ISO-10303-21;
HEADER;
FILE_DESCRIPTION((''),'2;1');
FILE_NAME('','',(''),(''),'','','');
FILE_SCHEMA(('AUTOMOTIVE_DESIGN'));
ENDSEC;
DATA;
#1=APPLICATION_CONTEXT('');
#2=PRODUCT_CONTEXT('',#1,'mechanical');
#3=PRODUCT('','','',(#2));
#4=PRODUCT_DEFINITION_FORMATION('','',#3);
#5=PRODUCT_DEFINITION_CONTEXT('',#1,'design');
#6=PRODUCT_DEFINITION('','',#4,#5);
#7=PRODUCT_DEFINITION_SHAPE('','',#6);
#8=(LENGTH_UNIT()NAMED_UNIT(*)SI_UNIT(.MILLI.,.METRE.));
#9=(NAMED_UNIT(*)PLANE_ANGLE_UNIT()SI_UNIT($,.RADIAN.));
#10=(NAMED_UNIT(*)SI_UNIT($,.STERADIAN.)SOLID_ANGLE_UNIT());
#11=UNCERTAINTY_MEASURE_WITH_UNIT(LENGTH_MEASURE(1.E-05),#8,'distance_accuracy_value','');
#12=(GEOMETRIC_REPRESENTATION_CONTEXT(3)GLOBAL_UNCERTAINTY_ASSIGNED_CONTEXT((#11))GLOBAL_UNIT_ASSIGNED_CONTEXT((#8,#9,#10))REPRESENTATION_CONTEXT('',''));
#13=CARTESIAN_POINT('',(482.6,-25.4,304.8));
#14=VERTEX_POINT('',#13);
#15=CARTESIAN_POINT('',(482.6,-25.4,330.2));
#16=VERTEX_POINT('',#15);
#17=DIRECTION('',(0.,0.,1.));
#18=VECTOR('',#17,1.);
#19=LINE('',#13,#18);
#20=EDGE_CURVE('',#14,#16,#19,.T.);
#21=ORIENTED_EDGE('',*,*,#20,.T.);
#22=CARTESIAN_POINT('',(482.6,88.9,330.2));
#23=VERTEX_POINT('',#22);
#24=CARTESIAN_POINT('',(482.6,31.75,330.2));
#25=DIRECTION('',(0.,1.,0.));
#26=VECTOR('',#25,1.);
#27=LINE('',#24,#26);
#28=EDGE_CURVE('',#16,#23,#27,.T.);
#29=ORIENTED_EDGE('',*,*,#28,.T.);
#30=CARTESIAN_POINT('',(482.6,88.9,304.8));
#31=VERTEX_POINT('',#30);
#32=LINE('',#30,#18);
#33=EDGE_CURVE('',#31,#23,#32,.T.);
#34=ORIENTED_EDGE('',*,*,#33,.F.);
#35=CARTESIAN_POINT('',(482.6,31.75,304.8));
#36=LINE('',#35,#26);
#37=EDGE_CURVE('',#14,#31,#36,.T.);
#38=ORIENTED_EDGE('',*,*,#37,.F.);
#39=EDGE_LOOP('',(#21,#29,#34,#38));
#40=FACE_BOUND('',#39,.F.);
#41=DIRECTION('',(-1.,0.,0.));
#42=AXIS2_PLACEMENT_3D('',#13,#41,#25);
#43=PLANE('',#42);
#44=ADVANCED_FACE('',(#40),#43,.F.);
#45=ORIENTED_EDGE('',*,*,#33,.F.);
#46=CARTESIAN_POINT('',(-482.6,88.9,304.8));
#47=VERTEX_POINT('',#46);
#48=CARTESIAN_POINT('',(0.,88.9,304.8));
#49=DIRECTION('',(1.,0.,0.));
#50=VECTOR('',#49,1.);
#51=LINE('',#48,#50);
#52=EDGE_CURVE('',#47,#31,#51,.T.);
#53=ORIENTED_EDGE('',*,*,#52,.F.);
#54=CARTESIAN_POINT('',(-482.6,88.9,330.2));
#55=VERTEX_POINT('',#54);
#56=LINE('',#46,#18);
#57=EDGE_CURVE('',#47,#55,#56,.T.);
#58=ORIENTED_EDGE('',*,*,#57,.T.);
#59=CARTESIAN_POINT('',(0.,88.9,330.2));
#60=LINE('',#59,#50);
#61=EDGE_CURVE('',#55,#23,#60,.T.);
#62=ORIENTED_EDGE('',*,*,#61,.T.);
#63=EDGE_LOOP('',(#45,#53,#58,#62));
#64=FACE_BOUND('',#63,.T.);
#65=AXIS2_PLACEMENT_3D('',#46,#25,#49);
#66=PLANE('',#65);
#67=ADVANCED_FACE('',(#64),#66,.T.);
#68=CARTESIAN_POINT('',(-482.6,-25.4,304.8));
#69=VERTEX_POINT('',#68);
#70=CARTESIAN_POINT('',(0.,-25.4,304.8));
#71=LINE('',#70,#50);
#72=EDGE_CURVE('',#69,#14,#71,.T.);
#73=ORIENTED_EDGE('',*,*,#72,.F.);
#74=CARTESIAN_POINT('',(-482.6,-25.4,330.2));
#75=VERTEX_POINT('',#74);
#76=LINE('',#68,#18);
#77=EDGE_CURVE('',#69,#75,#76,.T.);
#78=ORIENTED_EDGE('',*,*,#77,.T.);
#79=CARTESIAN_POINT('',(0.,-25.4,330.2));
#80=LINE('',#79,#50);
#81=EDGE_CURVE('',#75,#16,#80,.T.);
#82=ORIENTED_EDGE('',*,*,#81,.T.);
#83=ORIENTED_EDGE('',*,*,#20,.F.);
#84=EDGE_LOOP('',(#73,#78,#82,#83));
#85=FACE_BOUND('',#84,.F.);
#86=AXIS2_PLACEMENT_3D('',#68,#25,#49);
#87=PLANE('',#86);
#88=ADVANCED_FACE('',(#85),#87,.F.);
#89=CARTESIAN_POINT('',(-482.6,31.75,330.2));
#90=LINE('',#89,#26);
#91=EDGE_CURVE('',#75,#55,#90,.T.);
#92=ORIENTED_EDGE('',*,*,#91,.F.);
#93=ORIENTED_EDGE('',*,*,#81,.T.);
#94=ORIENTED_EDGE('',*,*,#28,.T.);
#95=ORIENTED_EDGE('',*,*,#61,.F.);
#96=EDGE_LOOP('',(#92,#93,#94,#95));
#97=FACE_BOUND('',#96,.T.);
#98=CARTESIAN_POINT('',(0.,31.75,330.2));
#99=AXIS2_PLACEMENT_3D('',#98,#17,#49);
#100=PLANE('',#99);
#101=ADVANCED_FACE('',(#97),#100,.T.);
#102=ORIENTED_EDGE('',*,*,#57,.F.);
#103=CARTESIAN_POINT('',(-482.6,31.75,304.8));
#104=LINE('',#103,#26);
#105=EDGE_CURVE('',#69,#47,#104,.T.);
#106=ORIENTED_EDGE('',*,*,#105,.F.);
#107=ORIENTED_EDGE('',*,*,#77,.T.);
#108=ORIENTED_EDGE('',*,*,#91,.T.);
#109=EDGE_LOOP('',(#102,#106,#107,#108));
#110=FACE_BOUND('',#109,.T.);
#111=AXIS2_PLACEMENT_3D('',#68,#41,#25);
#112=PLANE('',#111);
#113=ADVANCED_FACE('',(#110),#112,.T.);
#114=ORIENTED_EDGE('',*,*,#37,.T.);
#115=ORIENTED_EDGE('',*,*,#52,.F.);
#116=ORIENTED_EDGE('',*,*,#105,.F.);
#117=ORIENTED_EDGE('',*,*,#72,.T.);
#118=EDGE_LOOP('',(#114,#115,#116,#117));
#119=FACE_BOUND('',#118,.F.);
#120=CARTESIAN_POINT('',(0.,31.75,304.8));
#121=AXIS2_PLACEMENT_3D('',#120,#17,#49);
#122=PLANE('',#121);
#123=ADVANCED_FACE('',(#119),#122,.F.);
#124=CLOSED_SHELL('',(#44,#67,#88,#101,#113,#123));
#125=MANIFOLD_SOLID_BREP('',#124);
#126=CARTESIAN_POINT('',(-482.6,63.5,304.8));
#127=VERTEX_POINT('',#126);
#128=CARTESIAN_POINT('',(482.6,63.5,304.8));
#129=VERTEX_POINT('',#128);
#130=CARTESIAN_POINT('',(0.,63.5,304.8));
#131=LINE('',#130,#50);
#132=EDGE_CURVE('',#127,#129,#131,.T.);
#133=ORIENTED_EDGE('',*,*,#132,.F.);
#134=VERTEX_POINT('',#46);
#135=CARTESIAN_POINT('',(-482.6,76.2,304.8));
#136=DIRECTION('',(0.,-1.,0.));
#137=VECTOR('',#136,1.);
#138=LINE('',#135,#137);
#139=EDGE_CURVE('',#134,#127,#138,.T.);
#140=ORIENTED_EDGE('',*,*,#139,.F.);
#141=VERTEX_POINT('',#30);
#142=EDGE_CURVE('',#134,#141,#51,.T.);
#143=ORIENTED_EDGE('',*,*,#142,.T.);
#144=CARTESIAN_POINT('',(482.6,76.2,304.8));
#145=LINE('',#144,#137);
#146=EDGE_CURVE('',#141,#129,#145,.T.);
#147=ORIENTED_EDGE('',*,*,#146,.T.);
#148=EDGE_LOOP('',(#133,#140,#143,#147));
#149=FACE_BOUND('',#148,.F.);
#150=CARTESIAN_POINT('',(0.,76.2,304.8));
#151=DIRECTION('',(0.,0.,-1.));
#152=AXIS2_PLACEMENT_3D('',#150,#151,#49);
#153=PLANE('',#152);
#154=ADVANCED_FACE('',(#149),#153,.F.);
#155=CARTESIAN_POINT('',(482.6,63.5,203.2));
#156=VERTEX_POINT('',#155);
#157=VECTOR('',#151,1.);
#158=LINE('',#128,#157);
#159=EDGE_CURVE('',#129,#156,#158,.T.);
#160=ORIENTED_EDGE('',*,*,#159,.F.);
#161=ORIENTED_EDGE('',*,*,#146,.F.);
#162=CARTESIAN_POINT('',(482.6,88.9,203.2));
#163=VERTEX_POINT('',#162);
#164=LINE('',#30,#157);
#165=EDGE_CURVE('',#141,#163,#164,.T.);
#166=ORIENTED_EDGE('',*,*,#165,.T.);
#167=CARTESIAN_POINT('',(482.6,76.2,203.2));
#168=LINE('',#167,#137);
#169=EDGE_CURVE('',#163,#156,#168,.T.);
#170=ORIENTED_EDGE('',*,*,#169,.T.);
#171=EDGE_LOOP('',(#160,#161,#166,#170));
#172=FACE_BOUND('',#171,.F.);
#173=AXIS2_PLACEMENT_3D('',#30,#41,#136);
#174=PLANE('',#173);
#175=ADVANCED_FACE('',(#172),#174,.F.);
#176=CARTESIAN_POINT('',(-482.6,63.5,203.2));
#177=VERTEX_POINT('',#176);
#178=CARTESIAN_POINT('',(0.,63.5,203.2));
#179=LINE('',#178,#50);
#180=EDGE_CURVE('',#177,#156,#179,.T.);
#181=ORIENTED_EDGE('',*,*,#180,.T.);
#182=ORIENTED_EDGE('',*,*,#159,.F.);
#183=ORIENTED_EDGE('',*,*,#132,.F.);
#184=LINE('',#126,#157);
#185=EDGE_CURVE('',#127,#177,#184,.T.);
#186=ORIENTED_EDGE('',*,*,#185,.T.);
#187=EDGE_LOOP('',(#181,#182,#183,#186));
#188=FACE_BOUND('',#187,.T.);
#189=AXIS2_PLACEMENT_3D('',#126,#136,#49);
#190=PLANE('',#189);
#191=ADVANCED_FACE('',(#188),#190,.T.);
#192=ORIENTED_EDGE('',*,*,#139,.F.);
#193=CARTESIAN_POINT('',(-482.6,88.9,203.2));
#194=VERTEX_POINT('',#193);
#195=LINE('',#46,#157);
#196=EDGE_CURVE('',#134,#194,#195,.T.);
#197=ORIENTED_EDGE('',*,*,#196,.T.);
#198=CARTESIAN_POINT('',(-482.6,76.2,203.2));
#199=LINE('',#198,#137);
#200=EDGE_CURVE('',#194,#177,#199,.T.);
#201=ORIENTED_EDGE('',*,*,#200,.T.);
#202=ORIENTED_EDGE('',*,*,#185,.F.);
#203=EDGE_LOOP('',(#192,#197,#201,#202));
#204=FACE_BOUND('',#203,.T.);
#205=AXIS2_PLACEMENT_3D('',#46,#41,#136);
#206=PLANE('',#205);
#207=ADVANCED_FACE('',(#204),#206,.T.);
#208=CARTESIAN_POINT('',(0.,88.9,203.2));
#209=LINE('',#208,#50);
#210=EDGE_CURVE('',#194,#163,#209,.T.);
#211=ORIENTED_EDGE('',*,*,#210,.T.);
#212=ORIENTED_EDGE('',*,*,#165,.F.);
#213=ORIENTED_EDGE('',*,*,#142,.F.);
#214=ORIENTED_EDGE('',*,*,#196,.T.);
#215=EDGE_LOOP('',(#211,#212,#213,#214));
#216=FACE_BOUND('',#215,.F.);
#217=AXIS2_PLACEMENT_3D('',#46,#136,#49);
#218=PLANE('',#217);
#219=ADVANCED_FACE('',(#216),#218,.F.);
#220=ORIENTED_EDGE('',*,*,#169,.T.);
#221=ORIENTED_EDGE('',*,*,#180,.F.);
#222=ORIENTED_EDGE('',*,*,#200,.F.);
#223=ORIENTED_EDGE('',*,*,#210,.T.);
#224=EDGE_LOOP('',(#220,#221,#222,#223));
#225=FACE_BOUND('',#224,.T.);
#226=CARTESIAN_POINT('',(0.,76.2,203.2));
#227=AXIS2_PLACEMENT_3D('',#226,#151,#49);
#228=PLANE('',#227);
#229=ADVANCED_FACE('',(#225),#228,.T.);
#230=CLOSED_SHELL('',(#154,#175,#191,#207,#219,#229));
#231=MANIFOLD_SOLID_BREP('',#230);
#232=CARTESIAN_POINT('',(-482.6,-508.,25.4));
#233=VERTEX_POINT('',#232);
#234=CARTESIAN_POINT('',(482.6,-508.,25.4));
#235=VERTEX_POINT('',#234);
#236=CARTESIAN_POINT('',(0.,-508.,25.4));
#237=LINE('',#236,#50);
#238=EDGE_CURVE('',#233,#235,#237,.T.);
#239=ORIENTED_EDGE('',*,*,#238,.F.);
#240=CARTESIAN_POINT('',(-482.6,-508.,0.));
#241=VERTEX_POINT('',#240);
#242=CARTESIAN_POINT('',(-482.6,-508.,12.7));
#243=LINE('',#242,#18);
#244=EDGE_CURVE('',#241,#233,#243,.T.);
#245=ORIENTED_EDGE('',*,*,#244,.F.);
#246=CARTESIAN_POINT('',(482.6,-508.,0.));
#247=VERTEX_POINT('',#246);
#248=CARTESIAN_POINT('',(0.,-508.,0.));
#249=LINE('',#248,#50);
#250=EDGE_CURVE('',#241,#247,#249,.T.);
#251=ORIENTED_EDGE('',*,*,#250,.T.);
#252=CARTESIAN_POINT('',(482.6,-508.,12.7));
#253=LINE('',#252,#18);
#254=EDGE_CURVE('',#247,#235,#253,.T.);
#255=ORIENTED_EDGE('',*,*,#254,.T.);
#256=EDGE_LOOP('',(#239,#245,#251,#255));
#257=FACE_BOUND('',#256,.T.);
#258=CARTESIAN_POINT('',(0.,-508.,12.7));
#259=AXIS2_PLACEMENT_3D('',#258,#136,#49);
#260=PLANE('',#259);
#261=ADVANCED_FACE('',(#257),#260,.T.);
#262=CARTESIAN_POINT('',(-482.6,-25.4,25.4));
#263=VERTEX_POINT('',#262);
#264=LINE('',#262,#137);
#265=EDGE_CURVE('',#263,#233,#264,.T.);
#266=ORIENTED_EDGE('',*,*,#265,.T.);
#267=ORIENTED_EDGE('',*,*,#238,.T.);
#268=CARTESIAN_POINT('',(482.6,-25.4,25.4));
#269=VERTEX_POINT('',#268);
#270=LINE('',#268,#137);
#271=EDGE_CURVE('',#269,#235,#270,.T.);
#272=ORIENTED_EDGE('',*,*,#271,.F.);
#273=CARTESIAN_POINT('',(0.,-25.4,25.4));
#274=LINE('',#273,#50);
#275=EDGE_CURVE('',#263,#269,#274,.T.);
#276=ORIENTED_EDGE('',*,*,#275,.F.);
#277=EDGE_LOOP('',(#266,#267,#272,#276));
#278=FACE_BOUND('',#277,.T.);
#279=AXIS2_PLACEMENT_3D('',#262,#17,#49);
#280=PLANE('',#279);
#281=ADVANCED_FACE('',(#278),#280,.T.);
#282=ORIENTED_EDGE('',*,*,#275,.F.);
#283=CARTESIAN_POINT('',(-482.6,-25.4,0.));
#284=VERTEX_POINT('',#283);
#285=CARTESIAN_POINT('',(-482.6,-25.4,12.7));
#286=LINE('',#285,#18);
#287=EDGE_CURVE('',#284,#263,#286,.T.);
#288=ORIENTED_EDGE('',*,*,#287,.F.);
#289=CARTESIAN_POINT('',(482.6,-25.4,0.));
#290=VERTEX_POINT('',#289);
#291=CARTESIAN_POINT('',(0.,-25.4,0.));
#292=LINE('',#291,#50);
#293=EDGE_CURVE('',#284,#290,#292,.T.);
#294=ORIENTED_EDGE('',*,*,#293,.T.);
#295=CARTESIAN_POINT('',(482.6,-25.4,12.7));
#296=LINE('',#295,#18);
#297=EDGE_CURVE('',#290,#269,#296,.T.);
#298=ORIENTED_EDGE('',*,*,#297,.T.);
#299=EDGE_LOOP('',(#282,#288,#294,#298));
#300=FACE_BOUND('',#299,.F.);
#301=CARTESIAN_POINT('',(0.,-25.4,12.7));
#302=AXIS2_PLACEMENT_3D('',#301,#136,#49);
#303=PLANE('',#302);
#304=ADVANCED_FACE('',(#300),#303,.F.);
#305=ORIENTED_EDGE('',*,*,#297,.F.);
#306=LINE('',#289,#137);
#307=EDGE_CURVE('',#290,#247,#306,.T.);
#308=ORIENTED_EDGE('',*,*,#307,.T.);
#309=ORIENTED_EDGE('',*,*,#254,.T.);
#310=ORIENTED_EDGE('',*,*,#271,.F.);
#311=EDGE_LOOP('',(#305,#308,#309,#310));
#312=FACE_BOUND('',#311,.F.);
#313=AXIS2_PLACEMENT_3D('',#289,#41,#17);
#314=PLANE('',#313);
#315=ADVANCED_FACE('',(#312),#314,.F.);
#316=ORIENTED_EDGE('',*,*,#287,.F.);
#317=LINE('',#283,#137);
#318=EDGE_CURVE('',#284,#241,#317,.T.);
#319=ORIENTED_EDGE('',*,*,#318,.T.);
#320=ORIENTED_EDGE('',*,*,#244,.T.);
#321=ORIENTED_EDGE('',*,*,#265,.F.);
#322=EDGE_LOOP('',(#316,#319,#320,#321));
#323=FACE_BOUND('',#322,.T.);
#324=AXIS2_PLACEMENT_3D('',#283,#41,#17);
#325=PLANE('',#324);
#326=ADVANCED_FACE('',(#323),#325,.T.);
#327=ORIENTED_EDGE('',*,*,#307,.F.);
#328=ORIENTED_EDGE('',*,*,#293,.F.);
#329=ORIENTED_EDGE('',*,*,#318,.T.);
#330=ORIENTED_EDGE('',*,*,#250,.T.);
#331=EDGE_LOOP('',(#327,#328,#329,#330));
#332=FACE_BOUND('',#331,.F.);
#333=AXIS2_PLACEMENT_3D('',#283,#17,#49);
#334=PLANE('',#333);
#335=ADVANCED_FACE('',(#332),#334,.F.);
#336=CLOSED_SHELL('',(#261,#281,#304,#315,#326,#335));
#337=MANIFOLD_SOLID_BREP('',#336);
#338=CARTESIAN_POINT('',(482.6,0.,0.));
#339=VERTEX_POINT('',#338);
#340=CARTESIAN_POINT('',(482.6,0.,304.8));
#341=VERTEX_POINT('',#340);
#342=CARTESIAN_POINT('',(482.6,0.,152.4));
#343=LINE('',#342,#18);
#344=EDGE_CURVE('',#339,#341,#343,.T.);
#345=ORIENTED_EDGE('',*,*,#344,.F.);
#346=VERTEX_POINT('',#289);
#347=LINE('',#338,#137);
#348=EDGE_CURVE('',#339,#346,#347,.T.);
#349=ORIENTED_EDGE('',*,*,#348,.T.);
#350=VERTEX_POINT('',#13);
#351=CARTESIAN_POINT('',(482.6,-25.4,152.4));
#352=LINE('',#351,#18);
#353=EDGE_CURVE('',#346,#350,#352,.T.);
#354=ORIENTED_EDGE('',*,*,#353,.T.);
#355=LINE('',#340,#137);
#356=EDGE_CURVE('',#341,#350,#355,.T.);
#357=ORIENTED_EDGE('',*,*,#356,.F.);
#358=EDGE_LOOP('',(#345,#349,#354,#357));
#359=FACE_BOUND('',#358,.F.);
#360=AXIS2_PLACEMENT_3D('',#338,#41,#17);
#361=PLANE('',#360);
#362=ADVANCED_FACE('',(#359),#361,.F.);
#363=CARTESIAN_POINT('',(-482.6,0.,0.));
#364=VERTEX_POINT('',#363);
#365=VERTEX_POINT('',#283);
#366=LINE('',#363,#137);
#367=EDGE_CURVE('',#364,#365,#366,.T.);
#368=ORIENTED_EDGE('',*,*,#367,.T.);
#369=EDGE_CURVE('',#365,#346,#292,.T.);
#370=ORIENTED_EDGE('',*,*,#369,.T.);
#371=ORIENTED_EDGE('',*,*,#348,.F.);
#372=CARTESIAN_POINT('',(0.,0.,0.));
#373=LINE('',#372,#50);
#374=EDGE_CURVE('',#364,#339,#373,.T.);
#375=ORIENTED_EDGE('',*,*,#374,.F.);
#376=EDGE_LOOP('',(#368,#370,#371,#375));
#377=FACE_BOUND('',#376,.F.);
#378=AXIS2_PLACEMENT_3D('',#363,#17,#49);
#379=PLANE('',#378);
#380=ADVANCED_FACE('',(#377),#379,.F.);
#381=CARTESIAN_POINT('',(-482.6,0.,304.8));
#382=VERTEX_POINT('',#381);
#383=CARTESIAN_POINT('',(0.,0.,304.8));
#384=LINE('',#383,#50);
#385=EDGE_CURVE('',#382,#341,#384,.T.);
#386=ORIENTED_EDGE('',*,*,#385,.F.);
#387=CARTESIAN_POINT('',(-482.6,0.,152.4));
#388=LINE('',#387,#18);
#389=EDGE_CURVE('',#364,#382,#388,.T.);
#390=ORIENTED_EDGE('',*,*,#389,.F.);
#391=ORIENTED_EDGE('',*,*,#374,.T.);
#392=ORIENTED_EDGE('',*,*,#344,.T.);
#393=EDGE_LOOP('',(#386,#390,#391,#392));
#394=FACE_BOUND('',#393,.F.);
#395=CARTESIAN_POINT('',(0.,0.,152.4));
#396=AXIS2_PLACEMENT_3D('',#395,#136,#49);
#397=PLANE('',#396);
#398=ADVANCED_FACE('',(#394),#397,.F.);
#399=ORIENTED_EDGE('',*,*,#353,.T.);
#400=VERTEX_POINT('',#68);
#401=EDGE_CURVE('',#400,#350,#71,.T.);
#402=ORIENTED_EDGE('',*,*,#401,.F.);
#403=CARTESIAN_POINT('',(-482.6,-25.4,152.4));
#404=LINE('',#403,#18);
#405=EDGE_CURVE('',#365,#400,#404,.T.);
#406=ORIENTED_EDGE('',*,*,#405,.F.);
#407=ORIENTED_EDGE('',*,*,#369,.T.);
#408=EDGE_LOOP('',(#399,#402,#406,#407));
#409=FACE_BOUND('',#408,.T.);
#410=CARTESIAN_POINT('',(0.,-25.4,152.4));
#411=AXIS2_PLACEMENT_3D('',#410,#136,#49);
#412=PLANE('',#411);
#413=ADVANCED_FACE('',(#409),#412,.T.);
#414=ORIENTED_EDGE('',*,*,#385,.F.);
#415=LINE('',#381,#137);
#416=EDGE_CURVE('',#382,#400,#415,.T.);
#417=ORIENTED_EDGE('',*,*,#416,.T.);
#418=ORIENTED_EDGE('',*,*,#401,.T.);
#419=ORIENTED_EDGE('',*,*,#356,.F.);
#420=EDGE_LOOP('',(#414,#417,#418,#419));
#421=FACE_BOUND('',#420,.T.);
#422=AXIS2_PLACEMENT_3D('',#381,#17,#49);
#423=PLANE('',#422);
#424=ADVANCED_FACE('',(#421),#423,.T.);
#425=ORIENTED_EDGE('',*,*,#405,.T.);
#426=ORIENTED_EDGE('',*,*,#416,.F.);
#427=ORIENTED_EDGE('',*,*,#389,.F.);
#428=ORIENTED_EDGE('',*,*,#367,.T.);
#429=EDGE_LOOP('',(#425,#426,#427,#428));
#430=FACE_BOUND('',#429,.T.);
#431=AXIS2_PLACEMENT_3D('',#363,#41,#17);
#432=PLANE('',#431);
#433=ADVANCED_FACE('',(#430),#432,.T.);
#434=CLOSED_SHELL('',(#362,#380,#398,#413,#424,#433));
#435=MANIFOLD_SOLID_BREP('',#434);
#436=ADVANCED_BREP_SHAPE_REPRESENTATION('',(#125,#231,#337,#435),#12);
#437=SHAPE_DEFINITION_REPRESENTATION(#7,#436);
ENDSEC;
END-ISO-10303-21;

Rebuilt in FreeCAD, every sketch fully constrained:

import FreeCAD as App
import Part
import Sketcher
Q = App.Units.Quantity


def add_polygon(sketch, points):
    """Adds a closed chain of lines whose ends are joined by coincident constraints."""
    first, n = sketch.GeometryCount, len(points)
    for a, b in zip(points, points[1:] + points[:1]):
        sketch.addGeometry(Part.LineSegment(App.Vector(*a, 0), App.Vector(*b, 0)), False)
    for i in range(n):
        sketch.addConstraint(Sketcher.Constraint("Coincident", first + i, 2, first + (i + 1) % n, 1))

doc = App.newDocument("Part")
body = doc.addObject("PartDesign::Body", "Body")

sketch1 = doc.addObject("Sketcher::SketchObject", "Sketch")
body.addObject(sketch1)
sketch1.AttachmentSupport = (doc.XZ_Plane, [""])
sketch1.MapMode = "FlatFace"
add_polygon(sketch1, [(-482.6, 304.8), (-482.6, 0), (482.6, 0), (482.6, 304.8)])
sketch1.addConstraint([
    Sketcher.Constraint("Vertical", 0),
    Sketcher.Constraint("Horizontal", 1),
    Sketcher.Constraint("Vertical", 2),
    Sketcher.Constraint("Horizontal", 3),
    Sketcher.Constraint("Symmetric", 0, 2, 1, 2, -1, 1),
    Sketcher.Constraint("DistanceX", 1, 1, 1, 2, Q("38 in")),
    Sketcher.Constraint("DistanceY", 0, 2, 0, 1, Q("12 in")),
])
pad1 = doc.addObject("PartDesign::Pad", "Pad")
body.addObject(pad1)
pad1.Profile = sketch1
pad1.Length = Q("1 in")
body2 = doc.addObject("PartDesign::Body", "Body001")

sketch2 = doc.addObject("Sketcher::SketchObject", "Sketch001")
body2.addObject(sketch2)
sketch2.AttachmentSupport = (doc.getObject("XZ_Plane001"), [""])
sketch2.MapMode = "FlatFace"
sketch2.AttachmentOffset = App.Placement(App.Vector(0, 0, 1 * 25.4), App.Rotation())
add_polygon(sketch2, [(-482.6, 25.4), (-482.6, 0), (482.6, 0), (482.6, 25.4)])
sketch2.addConstraint([
    Sketcher.Constraint("Vertical", 0),
    Sketcher.Constraint("Horizontal", 1),
    Sketcher.Constraint("Vertical", 2),
    Sketcher.Constraint("Horizontal", 3),
    Sketcher.Constraint("Symmetric", 0, 2, 1, 2, -1, 1),
    Sketcher.Constraint("DistanceX", 1, 1, 1, 2, Q("38 in")),
    Sketcher.Constraint("DistanceY", 0, 2, 0, 1, Q("1 in")),
])
pad2 = doc.addObject("PartDesign::Pad", "Pad001")
body2.addObject(pad2)
pad2.Profile = sketch2
pad2.Length = Q("19 in")
body3 = doc.addObject("PartDesign::Body", "Body002")

sketch3 = doc.addObject("Sketcher::SketchObject", "Sketch002")
body3.addObject(sketch3)
sketch3.AttachmentSupport = (doc.getObject("XY_Plane002"), [""])
sketch3.MapMode = "FlatFace"
sketch3.AttachmentOffset = App.Placement(App.Vector(0, 0, 12 * 25.4), App.Rotation())
add_polygon(sketch3, [(-482.6, 88.9), (-482.6, -25.4), (482.6, -25.4), (482.6, 88.9)])
sketch3.addConstraint([
    Sketcher.Constraint("Vertical", 0),
    Sketcher.Constraint("Horizontal", 1),
    Sketcher.Constraint("Vertical", 2),
    Sketcher.Constraint("Horizontal", 3),
    Sketcher.Constraint("DistanceX", 1, 1, 1, 2, Q("38 in")),
    Sketcher.Constraint("DistanceY", 0, 2, 0, 1, Q("4.5 in")),
    Sketcher.Constraint("DistanceX", 0, 2, -1, 1, Q("19 in")),
    Sketcher.Constraint("DistanceY", 0, 2, -1, 1, Q("1 in")),
])
pad3 = doc.addObject("PartDesign::Pad", "Pad002")
body3.addObject(pad3)
pad3.Profile = sketch3
pad3.Length = Q("1 in")
body4 = doc.addObject("PartDesign::Body", "Body003")

sketch4 = doc.addObject("Sketcher::SketchObject", "Sketch003")
body4.addObject(sketch4)
sketch4.AttachmentSupport = (doc.getObject("XY_Plane003"), [""])
sketch4.MapMode = "FlatFace"
sketch4.AttachmentOffset = App.Placement(App.Vector(0, 0, 12 * 25.4), App.Rotation())
add_polygon(sketch4, [(-482.6, 63.5), (-482.6, 88.9), (482.6, 88.9), (482.6, 63.5)])
sketch4.addConstraint([
    Sketcher.Constraint("Vertical", 0),
    Sketcher.Constraint("Horizontal", 1),
    Sketcher.Constraint("Vertical", 2),
    Sketcher.Constraint("Horizontal", 3),
    Sketcher.Constraint("DistanceX", 1, 1, 1, 2, Q("38 in")),
    Sketcher.Constraint("DistanceY", 0, 1, 0, 2, Q("1 in")),
    Sketcher.Constraint("DistanceX", 0, 2, -1, 1, Q("19 in")),
    Sketcher.Constraint("DistanceY", -1, 1, 0, 2, Q("3.5 in")),
])
pad4 = doc.addObject("PartDesign::Pad", "Pad003")
body4.addObject(pad4)
pad4.Profile = sketch4
pad4.Length = Q("4 in")
pad4.Reversed = True

doc.recompute()
